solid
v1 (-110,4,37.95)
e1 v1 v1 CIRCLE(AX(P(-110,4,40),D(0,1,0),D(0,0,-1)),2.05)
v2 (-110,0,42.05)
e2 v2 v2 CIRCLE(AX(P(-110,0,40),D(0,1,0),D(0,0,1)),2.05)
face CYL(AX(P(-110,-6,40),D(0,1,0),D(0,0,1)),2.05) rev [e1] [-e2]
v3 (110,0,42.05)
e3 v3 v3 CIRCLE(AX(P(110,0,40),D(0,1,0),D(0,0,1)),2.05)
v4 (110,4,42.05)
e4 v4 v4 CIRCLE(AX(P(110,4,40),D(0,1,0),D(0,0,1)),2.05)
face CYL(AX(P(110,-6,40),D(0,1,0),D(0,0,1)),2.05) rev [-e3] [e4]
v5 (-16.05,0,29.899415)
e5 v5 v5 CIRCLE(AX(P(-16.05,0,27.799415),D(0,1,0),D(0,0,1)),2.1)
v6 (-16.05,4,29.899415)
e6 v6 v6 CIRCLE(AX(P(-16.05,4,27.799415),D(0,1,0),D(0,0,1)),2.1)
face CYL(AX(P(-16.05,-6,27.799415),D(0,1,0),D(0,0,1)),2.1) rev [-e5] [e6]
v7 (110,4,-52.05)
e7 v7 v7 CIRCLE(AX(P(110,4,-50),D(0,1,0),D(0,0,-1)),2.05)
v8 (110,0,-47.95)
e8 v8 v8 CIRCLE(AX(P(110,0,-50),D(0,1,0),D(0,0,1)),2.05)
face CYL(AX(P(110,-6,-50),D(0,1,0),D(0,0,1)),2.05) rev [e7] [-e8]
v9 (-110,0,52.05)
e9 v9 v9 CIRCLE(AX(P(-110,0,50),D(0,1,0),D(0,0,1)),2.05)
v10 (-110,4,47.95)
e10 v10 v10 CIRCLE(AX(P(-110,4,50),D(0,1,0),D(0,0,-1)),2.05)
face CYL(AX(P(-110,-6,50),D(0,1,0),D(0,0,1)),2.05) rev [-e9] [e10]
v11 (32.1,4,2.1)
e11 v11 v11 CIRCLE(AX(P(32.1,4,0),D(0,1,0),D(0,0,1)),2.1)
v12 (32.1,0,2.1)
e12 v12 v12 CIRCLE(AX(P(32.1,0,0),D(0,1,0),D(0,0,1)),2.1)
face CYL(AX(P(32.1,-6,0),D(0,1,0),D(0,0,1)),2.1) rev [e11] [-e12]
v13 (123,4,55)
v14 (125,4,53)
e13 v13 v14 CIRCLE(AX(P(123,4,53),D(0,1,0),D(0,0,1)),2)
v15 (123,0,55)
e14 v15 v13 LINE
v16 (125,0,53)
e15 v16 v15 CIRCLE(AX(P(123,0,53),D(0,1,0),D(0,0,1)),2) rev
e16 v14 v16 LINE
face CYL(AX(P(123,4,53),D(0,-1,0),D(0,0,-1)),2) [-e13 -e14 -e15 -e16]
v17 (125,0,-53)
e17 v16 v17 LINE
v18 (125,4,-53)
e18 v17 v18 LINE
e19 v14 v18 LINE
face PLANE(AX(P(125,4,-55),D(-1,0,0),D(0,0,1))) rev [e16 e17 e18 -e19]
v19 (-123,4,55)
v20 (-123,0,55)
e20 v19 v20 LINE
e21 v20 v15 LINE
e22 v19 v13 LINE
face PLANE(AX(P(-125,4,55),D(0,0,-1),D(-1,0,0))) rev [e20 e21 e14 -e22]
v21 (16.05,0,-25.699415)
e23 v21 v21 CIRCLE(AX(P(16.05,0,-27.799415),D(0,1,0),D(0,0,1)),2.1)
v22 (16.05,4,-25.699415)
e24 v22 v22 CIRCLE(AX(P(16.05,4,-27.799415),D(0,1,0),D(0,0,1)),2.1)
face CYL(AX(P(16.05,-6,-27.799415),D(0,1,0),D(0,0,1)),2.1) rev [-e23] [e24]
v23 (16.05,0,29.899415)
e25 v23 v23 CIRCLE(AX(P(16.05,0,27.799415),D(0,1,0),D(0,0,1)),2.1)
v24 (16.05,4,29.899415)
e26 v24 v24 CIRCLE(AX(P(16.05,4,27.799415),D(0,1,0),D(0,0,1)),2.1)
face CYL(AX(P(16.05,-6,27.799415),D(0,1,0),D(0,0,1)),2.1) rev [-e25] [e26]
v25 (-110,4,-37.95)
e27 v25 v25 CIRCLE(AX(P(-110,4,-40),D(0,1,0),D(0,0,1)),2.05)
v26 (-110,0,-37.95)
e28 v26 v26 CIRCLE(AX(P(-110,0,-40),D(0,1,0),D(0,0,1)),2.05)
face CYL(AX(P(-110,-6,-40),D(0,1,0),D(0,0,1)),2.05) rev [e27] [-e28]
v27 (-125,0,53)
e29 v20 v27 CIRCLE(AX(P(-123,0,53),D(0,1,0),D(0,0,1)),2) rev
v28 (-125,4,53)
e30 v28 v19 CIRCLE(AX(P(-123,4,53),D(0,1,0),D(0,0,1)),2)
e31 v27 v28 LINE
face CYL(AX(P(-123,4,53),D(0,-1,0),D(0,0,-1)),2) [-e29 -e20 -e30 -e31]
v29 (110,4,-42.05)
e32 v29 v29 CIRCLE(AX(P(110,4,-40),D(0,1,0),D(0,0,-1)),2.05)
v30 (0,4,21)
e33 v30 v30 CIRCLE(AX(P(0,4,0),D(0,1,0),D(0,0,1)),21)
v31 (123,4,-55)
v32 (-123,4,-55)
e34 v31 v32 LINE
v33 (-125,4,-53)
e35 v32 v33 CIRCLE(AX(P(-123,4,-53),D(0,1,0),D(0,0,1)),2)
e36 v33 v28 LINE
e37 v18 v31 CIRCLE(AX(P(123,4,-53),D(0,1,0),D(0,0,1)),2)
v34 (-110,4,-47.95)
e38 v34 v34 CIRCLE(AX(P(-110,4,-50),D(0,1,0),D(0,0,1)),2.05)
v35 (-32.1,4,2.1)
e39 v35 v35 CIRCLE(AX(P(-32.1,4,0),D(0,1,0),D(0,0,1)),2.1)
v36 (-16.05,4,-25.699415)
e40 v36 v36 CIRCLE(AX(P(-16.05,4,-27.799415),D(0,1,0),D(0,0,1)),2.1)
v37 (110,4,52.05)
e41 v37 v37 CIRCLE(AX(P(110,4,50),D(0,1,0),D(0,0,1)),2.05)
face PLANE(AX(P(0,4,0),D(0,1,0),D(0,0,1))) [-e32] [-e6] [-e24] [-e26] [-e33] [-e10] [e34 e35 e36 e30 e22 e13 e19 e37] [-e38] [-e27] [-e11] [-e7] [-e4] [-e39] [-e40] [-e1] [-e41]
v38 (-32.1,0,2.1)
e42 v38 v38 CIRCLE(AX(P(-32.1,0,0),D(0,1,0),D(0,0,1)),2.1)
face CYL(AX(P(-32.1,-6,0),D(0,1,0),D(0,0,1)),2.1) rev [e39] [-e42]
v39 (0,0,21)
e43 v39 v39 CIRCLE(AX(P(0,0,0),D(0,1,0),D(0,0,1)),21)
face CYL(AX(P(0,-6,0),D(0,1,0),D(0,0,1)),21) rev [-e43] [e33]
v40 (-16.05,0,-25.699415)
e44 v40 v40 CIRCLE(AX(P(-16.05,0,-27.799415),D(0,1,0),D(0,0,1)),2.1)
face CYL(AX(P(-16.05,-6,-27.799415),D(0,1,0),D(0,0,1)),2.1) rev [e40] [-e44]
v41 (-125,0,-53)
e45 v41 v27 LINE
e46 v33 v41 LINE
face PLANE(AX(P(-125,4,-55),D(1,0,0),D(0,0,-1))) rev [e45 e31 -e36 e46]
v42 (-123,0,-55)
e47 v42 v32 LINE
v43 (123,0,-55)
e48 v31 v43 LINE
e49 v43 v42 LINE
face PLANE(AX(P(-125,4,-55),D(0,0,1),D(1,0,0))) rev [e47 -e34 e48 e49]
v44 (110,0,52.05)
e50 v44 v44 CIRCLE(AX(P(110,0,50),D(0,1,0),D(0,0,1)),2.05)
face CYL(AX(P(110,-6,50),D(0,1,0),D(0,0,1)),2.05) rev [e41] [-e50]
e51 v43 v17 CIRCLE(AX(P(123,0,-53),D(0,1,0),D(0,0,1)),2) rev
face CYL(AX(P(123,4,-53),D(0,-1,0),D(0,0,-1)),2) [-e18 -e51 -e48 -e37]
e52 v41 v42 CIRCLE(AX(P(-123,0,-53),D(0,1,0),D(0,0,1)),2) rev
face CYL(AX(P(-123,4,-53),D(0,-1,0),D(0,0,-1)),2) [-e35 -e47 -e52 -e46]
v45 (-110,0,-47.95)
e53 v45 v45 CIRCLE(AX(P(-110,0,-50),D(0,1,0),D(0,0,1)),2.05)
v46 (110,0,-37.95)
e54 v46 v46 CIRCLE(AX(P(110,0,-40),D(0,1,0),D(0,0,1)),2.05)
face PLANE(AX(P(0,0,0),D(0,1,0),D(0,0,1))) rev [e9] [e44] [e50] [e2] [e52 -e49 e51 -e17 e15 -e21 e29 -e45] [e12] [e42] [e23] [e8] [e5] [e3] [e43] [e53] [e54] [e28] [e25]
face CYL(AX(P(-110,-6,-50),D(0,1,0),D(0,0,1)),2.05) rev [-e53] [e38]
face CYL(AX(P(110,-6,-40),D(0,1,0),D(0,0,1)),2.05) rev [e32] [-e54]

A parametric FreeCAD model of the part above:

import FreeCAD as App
import Part
import Sketcher


def edges_at(feature, points):
    """Names of the edges that pass closest to the given points."""
    edges = feature.Shape.Edges
    near = lambda p: min(range(len(edges)), key=lambda i: edges[i].distToShape(Part.Vertex(*p))[0])
    return sorted({f"Edge{near(p) + 1}" for p in points})

doc = App.newDocument("Part")
body = doc.addObject("PartDesign::Body", "Body")

# Sketch on XZ plane
sketch1 = body.newObject("Sketcher::SketchObject", "Sketch")
sketch1.AttachmentSupport = (doc.getObject("XZ_Plane"), [""])
sketch1.MapMode = "FlatFace"
sketch1.addGeometry([
    Part.LineSegment(App.Vector(-125, -55, 0), App.Vector(-125, 55, 0)),
    Part.LineSegment(App.Vector(-125, 55, 0), App.Vector(125, 55, 0)),
    Part.LineSegment(App.Vector(125, 55, 0), App.Vector(125, -55, 0)),
    Part.LineSegment(App.Vector(125, -55, 0), App.Vector(-125, -55, 0)),
], False)
sketch1.addConstraint([
    Sketcher.Constraint("Coincident", 0, 2, 1, 1),
    Sketcher.Constraint("Coincident", 1, 2, 2, 1),
    Sketcher.Constraint("Coincident", 2, 2, 3, 1),
    Sketcher.Constraint("Coincident", 3, 2, 0, 1),
    Sketcher.Constraint("Vertical", 0),
    Sketcher.Constraint("Horizontal", 1),
    Sketcher.Constraint("Vertical", 2),
    Sketcher.Constraint("Horizontal", 3),
    Sketcher.Constraint("Symmetric", 0, 2, 2, 2, -1, 1),
    Sketcher.Constraint("DistanceX", 1, 1, 1, 2, 250.0),
    Sketcher.Constraint("DistanceY", 0, 1, 0, 2, 110.0),
])
pad1 = body.newObject("PartDesign::Pad", "Pad")
pad1.Profile = sketch1
pad1.Length = 4
pad1.Reversed = True

# Sketch on XZ plane
sketch2 = body.newObject("Sketcher::SketchObject", "Sketch001")
sketch2.AttachmentSupport = (doc.getObject("XZ_Plane"), [""])
sketch2.MapMode = "FlatFace"
sketch2.AttachmentOffset = App.Placement(App.Vector(0, 0, -4), App.Rotation())
sketch2.addGeometry([
    Part.Circle(App.Vector(-32.1, 0, 0), App.Vector(0, 0, 1), 2.1),  # 0
    Part.Circle(App.Vector(-16.05, -27.799415, 0), App.Vector(0, 0, 1), 2.1),  # 1
    Part.Circle(App.Vector(16.05, -27.799415, 0), App.Vector(0, 0, 1), 2.1),  # 2
    Part.Circle(App.Vector(32.1, 0, 0), App.Vector(0, 0, 1), 2.1),  # 3
    Part.Circle(App.Vector(16.05, 27.799415, 0), App.Vector(0, 0, 1), 2.1),  # 4
    Part.Circle(App.Vector(-16.05, 27.799415, 0), App.Vector(0, 0, 1), 2.1),  # 5
], False)
sketch2.addConstraint([
    Sketcher.Constraint("Equal", 0, 1),
    Sketcher.Constraint("Equal", 1, 2),
    Sketcher.Constraint("Equal", 2, 3),
    Sketcher.Constraint("Equal", 3, 4),
    Sketcher.Constraint("Equal", 4, 5),
    Sketcher.Constraint("Symmetric", 0, 3, 3, 3, -1, 1),
    Sketcher.Constraint("Symmetric", 1, 3, 4, 3, -1, 1),
    Sketcher.Constraint("Symmetric", 2, 3, 5, 3, -1, 1),
    Sketcher.Constraint("Symmetric", 1, 3, 2, 3, -2),
    Sketcher.Constraint("PointOnObject", 0, 3, -1),
    Sketcher.Constraint("Diameter", 0, 4.2),
    Sketcher.Constraint("DistanceX", 0, 3, -1, 1, 32.1),
    Sketcher.Constraint("DistanceX", 1, 3, 2, 3, 32.1),
    Sketcher.Constraint("DistanceY", 2, 3, 4, 3, 55.598831),
])
pocket1 = body.newObject("PartDesign::Pocket", "Pocket")
pocket1.Profile = sketch2
pocket1.Length = 10
pocket1.Reversed = True

# Sketch on XZ plane
sketch3 = body.newObject("Sketcher::SketchObject", "Sketch002")
sketch3.AttachmentSupport = (doc.getObject("XZ_Plane"), [""])
sketch3.MapMode = "FlatFace"
sketch3.AttachmentOffset = App.Placement(App.Vector(0, 0, -4), App.Rotation())
sketch3.addGeometry(Part.Circle(App.Vector(0, 0, 0), App.Vector(0, 0, 1), 21), False)
sketch3.addConstraint([
    Sketcher.Constraint("Coincident", 0, 3, -1, 1),
    Sketcher.Constraint("Diameter", 0, 42.0),
])
pocket2 = body.newObject("PartDesign::Pocket", "Pocket001")
pocket2.Profile = sketch3
pocket2.Length = 10
pocket2.Reversed = True

# Sketch on XZ plane
sketch4 = body.newObject("Sketcher::SketchObject", "Sketch003")
sketch4.AttachmentSupport = (doc.getObject("XZ_Plane"), [""])
sketch4.MapMode = "FlatFace"
sketch4.AttachmentOffset = App.Placement(App.Vector(0, 0, -4), App.Rotation())
sketch4.addGeometry([
    Part.Circle(App.Vector(-110, -50, 0), App.Vector(0, 0, 1), 2.05),  # 0
    Part.Circle(App.Vector(-110, -40, 0), App.Vector(0, 0, 1), 2.05),  # 1
    Part.Circle(App.Vector(110, -40, 0), App.Vector(0, 0, 1), 2.05),  # 2
    Part.Circle(App.Vector(110, -50, 0), App.Vector(0, 0, 1), 2.05),  # 3
    Part.Circle(App.Vector(110, 50, 0), App.Vector(0, 0, 1), 2.05),  # 4
    Part.Circle(App.Vector(110, 40, 0), App.Vector(0, 0, 1), 2.05),  # 5
    Part.Circle(App.Vector(-110, 50, 0), App.Vector(0, 0, 1), 2.05),  # 6
    Part.Circle(App.Vector(-110, 40, 0), App.Vector(0, 0, 1), 2.05),  # 7
], False)
sketch4.addConstraint([
    Sketcher.Constraint("Equal", 0, 1),
    Sketcher.Constraint("Equal", 1, 2),
    Sketcher.Constraint("Equal", 2, 3),
    Sketcher.Constraint("Equal", 3, 4),
    Sketcher.Constraint("Equal", 4, 5),
    Sketcher.Constraint("Equal", 5, 6),
    Sketcher.Constraint("Equal", 6, 7),
    Sketcher.Constraint("Symmetric", 0, 3, 4, 3, -1, 1),
    Sketcher.Constraint("Symmetric", 1, 3, 5, 3, -1, 1),
    Sketcher.Constraint("Symmetric", 3, 3, 6, 3, -1, 1),
    Sketcher.Constraint("Symmetric", 2, 3, 7, 3, -1, 1),
    Sketcher.Constraint("Symmetric", 1, 3, 2, 3, -2),
    Sketcher.Constraint("Symmetric", 0, 3, 3, 3, -2),
    Sketcher.Constraint("Vertical", 0, 3, 1, 3),
    Sketcher.Constraint("Diameter", 0, 4.1),
    Sketcher.Constraint("DistanceX", 0, 3, -1, 1, 110.0),
    Sketcher.Constraint("DistanceY", 0, 3, -1, 1, 50.0),
    Sketcher.Constraint("DistanceY", 1, 3, -1, 1, 40.0),
])
pocket3 = body.newObject("PartDesign::Pocket", "Pocket002")
pocket3.Profile = sketch4
pocket3.Length = 10
pocket3.Reversed = True
doc.recompute()

fillet = body.newObject("PartDesign::Fillet", "Fillet")
fillet.Base = (pocket3, edges_at(pocket3, [
    (125, 2, 55),
    (-125, 2, 55),
    (-125, 2, -55),
    (125, 2, -55),
]))
fillet.Radius = 2

doc.recompute()
